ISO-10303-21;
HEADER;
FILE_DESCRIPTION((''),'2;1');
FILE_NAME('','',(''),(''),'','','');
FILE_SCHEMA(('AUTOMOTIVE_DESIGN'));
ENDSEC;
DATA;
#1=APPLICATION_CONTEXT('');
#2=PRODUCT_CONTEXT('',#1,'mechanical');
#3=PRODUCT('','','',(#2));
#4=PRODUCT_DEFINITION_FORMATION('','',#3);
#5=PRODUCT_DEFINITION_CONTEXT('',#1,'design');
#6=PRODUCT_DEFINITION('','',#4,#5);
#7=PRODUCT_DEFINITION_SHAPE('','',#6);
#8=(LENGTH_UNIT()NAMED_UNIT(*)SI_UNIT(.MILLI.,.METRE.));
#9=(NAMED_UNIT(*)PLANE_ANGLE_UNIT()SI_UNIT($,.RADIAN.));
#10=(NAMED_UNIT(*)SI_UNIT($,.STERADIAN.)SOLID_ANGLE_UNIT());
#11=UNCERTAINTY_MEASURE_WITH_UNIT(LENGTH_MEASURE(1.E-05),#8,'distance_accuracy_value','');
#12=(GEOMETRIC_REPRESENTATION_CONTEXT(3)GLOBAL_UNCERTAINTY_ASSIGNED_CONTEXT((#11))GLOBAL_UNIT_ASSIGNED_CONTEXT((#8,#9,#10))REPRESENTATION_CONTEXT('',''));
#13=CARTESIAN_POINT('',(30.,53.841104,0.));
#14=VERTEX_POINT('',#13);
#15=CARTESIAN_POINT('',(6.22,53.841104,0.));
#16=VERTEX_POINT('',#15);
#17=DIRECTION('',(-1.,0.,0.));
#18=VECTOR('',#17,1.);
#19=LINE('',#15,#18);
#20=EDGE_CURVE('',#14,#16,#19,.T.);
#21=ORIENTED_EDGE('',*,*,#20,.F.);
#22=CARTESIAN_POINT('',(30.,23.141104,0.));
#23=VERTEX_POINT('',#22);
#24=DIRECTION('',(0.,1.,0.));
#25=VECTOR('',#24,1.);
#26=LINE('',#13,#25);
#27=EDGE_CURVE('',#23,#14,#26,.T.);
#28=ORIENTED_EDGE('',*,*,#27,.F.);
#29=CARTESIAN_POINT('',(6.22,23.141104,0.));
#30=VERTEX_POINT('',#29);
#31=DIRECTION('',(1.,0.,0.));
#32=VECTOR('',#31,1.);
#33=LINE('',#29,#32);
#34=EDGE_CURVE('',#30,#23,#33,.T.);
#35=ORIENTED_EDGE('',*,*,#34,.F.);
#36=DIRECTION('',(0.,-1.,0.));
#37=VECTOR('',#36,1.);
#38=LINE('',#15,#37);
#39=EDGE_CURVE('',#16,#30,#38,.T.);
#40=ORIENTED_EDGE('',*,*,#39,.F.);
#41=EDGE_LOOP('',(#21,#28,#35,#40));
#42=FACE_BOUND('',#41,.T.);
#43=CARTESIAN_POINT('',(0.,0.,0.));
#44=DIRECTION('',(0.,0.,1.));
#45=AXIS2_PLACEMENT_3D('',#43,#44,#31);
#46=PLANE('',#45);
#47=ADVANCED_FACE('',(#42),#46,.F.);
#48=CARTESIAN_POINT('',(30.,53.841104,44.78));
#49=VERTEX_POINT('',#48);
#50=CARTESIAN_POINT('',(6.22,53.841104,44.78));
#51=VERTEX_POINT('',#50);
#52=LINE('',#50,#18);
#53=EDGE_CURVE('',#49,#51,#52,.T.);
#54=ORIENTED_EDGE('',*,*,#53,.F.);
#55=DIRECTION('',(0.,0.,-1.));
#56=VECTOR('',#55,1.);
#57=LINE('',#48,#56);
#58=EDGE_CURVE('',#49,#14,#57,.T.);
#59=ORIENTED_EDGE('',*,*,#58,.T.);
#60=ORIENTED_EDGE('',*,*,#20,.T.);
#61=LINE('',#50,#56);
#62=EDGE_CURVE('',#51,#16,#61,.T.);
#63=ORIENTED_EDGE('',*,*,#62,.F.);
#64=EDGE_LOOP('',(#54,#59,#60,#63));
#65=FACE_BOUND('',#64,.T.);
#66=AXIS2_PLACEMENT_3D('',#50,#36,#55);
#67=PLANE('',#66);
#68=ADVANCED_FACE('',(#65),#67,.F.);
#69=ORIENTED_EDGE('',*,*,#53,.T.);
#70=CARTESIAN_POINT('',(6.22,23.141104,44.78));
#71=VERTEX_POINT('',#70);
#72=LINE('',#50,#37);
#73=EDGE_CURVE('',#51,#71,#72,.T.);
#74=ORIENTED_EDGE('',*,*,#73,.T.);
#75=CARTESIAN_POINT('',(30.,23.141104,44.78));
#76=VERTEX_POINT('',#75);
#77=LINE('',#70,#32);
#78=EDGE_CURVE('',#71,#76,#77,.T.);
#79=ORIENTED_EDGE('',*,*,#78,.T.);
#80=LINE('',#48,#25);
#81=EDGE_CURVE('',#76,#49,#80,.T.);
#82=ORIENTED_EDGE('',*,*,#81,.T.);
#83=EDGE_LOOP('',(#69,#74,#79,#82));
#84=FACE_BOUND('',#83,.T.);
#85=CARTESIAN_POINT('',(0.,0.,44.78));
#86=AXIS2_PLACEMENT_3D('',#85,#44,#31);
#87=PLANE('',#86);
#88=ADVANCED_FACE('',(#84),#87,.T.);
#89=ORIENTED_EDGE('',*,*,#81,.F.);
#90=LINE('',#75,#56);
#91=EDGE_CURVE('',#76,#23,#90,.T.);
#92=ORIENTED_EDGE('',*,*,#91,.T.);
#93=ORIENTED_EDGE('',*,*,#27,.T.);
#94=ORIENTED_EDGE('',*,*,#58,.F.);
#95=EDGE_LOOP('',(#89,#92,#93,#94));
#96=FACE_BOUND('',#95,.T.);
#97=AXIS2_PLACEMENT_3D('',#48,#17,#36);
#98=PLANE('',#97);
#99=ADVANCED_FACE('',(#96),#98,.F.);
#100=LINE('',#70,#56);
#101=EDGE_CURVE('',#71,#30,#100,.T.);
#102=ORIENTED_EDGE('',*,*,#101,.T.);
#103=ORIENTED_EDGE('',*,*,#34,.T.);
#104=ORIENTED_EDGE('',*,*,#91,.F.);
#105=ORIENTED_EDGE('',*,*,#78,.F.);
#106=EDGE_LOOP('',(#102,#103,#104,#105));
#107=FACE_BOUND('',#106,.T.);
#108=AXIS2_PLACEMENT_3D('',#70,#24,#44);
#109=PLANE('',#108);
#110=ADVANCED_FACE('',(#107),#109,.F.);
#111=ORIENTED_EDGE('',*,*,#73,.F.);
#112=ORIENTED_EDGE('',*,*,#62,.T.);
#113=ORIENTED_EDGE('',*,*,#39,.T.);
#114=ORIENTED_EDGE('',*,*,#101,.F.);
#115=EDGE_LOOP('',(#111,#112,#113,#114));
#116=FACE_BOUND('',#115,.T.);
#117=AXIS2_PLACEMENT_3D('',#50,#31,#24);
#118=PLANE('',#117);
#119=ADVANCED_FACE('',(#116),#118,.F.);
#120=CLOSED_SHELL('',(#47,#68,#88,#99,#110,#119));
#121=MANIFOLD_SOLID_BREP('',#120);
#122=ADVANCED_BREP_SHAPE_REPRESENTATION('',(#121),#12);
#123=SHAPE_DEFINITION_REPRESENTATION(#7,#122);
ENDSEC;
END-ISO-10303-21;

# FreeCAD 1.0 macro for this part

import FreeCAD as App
import Part
import Sketcher
from FreeCAD import Vector


def add_polygon(sketch, points):
    """Adds a closed chain of lines whose ends are joined by coincident constraints."""
    first, n = sketch.GeometryCount, len(points)
    for a, b in zip(points, points[1:] + points[:1]):
        sketch.addGeometry(Part.LineSegment(App.Vector(*a, 0), App.Vector(*b, 0)), False)
    for i in range(n):
        sketch.addConstraint(Sketcher.Constraint("Coincident", first + i, 2, first + (i + 1) % n, 1))

doc = App.newDocument("Part")
body = doc.addObject("PartDesign::Body", "Body")

sketch1 = doc.addObject("Sketcher::SketchObject", "Sketch")
body.addObject(sketch1)
sketch1.AttachmentSupport = (doc.XY_Plane, [""])
sketch1.MapMode = "FlatFace"
add_polygon(sketch1, [(6, 54), (6, 23), (30, 23), (30, 54)])
sketch1.addConstraint([
    Sketcher.Constraint("Vertical", 0),
    Sketcher.Constraint("Horizontal", 1),
    Sketcher.Constraint("Vertical", 2),
    Sketcher.Constraint("Horizontal", 3),
    Sketcher.Constraint("DistanceY", 0, 2, 0, 1, 30.7),
    Sketcher.Constraint("DistanceX", -1, 1, 1, 2, 30.0),
    Sketcher.Constraint("DistanceX", 1, 1, 1, 2, 23.78),
    Sketcher.Constraint("DistanceY", -1, 1, 0, 2, 23.141104),
])
pad1 = doc.addObject("PartDesign::Pad", "Pad")
body.addObject(pad1)
pad1.Profile = sketch1
pad1.Length = 44.78

doc.recompute()
